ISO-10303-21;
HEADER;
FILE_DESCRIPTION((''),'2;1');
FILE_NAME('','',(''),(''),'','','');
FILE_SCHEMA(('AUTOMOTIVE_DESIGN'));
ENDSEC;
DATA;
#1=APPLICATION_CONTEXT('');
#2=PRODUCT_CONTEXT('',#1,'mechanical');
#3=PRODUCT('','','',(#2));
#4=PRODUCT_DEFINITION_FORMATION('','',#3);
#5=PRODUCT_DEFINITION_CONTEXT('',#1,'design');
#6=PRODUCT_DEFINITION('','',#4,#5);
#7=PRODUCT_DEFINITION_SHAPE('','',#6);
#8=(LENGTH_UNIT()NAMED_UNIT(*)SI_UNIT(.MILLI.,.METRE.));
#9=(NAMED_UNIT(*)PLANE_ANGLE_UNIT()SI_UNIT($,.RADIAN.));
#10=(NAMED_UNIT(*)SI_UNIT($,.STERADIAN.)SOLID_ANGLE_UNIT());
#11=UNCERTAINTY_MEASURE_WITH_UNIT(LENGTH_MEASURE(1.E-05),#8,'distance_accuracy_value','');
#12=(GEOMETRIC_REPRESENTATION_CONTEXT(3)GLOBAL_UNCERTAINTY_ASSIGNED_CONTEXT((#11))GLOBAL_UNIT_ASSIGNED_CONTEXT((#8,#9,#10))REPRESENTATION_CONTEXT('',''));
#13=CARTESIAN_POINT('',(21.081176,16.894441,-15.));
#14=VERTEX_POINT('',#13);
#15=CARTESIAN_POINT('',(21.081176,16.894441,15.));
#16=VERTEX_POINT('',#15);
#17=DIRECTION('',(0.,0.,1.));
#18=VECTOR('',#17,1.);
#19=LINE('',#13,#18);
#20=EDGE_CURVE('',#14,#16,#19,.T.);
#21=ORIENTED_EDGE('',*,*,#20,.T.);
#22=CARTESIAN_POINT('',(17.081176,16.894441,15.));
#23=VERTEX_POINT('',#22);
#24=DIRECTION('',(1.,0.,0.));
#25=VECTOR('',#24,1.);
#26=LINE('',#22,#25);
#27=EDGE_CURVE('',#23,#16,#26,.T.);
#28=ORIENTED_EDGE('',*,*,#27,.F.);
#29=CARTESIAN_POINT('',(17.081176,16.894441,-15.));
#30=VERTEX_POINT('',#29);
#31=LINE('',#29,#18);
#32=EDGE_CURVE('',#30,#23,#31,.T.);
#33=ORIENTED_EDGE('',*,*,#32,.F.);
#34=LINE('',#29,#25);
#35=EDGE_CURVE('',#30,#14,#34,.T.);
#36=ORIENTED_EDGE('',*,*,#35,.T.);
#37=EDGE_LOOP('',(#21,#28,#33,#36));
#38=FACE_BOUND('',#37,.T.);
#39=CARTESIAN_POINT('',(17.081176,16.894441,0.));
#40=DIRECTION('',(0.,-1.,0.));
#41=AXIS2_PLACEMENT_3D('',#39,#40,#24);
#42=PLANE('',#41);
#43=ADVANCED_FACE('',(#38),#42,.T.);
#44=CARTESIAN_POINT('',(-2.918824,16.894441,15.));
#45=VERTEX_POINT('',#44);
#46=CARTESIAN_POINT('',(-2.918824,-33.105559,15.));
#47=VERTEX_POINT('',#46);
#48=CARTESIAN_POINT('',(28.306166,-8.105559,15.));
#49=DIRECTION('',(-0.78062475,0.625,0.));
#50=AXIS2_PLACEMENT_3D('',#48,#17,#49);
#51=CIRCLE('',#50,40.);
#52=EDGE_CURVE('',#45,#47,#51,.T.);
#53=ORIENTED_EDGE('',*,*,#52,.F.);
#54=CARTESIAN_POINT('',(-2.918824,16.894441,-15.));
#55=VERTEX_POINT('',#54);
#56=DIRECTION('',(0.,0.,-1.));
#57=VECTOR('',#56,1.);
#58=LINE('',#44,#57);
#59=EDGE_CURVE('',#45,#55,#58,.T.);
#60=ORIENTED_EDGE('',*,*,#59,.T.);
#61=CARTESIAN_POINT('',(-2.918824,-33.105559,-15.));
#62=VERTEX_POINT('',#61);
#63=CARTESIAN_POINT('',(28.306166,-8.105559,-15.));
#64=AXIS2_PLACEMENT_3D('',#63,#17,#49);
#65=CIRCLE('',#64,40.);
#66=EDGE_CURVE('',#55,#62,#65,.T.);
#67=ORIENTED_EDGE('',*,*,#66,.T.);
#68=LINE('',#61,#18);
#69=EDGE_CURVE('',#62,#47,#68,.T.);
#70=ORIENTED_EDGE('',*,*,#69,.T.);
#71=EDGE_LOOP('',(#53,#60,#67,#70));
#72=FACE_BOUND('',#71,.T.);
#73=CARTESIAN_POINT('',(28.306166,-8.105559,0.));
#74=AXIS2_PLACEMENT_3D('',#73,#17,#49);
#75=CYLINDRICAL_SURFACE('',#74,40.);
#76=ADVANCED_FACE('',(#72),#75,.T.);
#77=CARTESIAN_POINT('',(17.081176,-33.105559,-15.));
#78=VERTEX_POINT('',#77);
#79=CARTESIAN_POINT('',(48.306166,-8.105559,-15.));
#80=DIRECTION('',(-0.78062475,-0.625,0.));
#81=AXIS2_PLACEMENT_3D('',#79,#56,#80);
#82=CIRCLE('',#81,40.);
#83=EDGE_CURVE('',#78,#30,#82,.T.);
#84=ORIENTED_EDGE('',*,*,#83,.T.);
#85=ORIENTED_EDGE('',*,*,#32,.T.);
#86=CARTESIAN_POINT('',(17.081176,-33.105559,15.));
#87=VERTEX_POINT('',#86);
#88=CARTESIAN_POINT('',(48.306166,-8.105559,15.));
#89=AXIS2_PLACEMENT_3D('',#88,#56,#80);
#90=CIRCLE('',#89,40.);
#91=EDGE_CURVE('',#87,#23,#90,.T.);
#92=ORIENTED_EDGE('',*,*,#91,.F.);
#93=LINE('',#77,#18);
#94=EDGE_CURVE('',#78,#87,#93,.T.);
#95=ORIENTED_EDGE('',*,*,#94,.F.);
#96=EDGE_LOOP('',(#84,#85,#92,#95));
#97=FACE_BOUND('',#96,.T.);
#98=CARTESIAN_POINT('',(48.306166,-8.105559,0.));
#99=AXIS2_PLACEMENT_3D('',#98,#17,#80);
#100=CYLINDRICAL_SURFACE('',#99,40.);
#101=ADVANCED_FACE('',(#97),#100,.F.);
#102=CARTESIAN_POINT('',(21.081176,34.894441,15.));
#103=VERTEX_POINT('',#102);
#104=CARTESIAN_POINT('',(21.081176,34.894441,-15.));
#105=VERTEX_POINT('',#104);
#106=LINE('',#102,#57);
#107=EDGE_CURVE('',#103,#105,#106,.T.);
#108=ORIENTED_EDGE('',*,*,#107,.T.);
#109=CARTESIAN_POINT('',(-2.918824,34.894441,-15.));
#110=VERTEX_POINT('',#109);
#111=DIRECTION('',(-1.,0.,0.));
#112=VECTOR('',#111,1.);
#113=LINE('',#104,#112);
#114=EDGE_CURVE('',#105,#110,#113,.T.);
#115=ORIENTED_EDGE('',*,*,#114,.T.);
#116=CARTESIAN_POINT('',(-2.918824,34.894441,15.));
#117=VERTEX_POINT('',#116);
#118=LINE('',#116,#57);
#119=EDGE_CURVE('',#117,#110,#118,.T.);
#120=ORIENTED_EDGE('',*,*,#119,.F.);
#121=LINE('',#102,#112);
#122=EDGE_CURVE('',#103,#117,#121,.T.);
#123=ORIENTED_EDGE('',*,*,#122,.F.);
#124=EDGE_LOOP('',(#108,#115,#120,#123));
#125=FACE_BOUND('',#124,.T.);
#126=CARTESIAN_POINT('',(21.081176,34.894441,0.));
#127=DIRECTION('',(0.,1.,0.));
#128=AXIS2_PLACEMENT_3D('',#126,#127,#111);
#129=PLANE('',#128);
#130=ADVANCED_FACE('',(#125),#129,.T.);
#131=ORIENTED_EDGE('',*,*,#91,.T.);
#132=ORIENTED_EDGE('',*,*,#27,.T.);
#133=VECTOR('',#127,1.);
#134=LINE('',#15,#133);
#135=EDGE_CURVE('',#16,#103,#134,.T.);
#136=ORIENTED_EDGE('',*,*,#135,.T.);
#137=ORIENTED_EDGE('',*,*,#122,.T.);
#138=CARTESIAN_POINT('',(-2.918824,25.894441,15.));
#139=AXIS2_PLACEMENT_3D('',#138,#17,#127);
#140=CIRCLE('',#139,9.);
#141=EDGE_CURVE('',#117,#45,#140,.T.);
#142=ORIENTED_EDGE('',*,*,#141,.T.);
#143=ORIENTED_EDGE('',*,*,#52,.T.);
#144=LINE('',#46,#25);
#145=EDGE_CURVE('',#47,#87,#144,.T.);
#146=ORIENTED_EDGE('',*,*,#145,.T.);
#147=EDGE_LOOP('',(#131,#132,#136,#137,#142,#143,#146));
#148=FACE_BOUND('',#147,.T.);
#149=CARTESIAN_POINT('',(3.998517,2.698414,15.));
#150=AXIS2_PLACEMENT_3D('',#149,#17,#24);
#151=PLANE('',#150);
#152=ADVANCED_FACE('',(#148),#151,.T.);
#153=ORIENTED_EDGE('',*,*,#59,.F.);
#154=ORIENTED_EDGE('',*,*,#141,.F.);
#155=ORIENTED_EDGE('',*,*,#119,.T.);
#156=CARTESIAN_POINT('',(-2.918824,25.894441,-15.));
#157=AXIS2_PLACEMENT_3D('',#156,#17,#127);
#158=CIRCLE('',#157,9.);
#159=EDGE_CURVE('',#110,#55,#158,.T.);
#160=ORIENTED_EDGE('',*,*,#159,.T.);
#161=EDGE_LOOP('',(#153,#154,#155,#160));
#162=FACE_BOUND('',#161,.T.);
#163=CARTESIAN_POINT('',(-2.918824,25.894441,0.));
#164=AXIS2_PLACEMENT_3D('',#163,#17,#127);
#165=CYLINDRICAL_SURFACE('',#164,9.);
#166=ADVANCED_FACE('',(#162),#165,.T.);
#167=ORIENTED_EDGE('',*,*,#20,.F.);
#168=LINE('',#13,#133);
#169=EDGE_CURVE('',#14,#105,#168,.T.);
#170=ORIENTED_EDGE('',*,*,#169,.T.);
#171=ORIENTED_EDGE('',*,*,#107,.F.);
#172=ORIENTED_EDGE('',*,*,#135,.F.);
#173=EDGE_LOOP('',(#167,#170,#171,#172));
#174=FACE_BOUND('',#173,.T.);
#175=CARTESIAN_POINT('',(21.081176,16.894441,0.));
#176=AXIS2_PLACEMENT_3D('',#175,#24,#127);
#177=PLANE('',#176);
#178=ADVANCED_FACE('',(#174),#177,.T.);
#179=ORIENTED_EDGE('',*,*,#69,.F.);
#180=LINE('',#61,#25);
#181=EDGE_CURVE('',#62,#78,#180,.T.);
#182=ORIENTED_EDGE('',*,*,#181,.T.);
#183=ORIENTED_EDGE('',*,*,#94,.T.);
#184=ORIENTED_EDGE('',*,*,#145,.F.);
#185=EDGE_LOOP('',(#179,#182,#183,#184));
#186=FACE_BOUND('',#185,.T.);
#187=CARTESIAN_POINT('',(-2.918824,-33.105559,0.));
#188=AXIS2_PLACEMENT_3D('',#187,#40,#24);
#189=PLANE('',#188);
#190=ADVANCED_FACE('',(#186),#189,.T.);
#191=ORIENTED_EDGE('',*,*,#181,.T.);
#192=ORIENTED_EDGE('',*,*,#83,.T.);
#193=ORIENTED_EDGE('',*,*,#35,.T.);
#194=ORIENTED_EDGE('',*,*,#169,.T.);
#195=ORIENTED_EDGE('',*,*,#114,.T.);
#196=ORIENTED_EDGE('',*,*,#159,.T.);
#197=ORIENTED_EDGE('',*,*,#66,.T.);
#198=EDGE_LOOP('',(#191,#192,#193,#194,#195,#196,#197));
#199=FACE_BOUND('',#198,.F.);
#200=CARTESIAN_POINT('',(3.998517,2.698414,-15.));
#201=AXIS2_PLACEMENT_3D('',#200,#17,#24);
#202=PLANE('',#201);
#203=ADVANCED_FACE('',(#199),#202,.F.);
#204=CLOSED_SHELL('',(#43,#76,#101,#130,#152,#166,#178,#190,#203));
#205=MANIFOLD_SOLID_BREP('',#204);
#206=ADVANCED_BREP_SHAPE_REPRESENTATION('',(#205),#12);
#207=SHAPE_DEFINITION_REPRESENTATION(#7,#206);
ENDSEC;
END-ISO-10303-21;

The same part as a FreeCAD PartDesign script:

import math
import FreeCAD as App
import Part
import Sketcher

doc = App.newDocument("Part")
body = doc.addObject("PartDesign::Body", "Body")

# Sketch on XY plane
sketch1 = body.newObject("Sketcher::SketchObject", "Sketch")
sketch1.AttachmentSupport = (doc.getObject("XY_Plane"), [""])
sketch1.MapMode = "FlatFace"
sketch1.addGeometry([
    Part.ArcOfCircle(Part.Circle(App.Vector(28.306166, -8.105559, 0), App.Vector(0, 0, 1), 40), math.radians(141.317813), math.radians(218.682187)),  # 0
    Part.LineSegment(App.Vector(-2.918824, -33.105559, 0), App.Vector(17.081176, -33.105559, 0)),  # 1
    Part.ArcOfCircle(Part.Circle(App.Vector(48.306166, -8.105559, 0), App.Vector(0, 0, 1), 40), math.radians(141.317813), math.radians(218.682187)),  # 2
    Part.LineSegment(App.Vector(17.081176, 16.894441, 0), App.Vector(21.081176, 16.894441, 0)),  # 3
    Part.LineSegment(App.Vector(21.081176, 16.894441, 0), App.Vector(21.081176, 34.894441, 0)),  # 4
    Part.LineSegment(App.Vector(21.081176, 34.894441, 0), App.Vector(-2.918824, 34.894441, 0)),  # 5
    Part.ArcOfCircle(Part.Circle(App.Vector(-2.918824, 25.894441, 0), App.Vector(0, 0, 1), 9), math.radians(90), math.radians(270)),  # 6
], False)
sketch1.addConstraint([
    Sketcher.Constraint("Coincident", 0, 2, 1, 1),
    Sketcher.Constraint("Coincident", 1, 2, 2, 2),
    Sketcher.Constraint("Coincident", 2, 1, 3, 1),
    Sketcher.Constraint("Coincident", 3, 2, 4, 1),
    Sketcher.Constraint("Coincident", 4, 2, 5, 1),
    Sketcher.Constraint("Tangent", 5, 2, 6, 1),
    Sketcher.Constraint("Coincident", 6, 2, 0, 1),
    Sketcher.Constraint("Horizontal", 1),
    Sketcher.Constraint("Horizontal", 3),
    Sketcher.Constraint("Vertical", 4),
    Sketcher.Constraint("Horizontal", 5),
    Sketcher.Constraint("Equal", 0, 2),
    Sketcher.Constraint("Horizontal", 0, 3, 2, 3),
    Sketcher.Constraint("Horizontal", 3, 2, 6, 2),
    Sketcher.Constraint("Vertical", 6, 3, 0, 2),
    Sketcher.Constraint("Vertical", 1, 2, 2, 1),
    Sketcher.Constraint("Radius", 0, 40.0),
    Sketcher.Constraint("Radius", 6, 9.0),
    Sketcher.Constraint("DistanceX", 1, 1, 1, 2, 20.0),
    Sketcher.Constraint("DistanceX", 3, 1, 3, 2, 4.0),
    Sketcher.Constraint("DistanceY", 0, 3, 6, 3, 34.0),
    Sketcher.Constraint("DistanceY", 0, 3, -1, 1, 8.105559),
    Sketcher.Constraint("DistanceX", -1, 1, 0, 3, 28.306166),
])
pad1 = body.newObject("PartDesign::Pad", "Pad")
pad1.Profile = sketch1
pad1.Length = 30
pad1.Midplane = True

doc.recompute()
